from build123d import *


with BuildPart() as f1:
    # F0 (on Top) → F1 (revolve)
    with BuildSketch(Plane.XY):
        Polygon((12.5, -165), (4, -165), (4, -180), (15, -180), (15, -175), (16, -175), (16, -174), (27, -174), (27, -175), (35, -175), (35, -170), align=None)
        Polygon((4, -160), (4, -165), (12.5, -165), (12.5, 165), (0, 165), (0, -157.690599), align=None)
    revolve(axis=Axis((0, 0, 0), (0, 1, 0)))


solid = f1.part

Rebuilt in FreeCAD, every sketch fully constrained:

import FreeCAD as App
import Part
import Sketcher
Q = App.Units.Quantity


def add_polygon(sketch, points):
    """Adds a closed chain of lines whose ends are joined by coincident constraints."""
    first, n = sketch.GeometryCount, len(points)
    for a, b in zip(points, points[1:] + points[:1]):
        sketch.addGeometry(Part.LineSegment(App.Vector(*a, 0), App.Vector(*b, 0)), False)
    for i in range(n):
        sketch.addConstraint(Sketcher.Constraint("Coincident", first + i, 2, first + (i + 1) % n, 1))

doc = App.newDocument("Part")
params = doc.addObject("Spreadsheet::Sheet", "Params")
for row, (alias, value) in enumerate([
    ("sketch1_width", "11 mm"),
    ("sketch1_width2", "1 mm"),
    ("sketch1_width3", "8 mm"),
    ("sketch1_height", "5 mm"),
    ("sketch1_height2", "330 mm"),
    ("revolution_angle", "360 deg"),
], start=1):
    params.set(f"A{row}", alias)
    params.set(f"B{row}", "=" + value)
    params.setAlias(f"B{row}", alias)

body = doc.addObject("PartDesign::Body", "Body")

# Sketch on XY plane
sketch1 = body.newObject("Sketcher::SketchObject", "Sketch")
sketch1.AttachmentSupport = (doc.getObject("XY_Plane"), [""])
sketch1.MapMode = "FlatFace"
add_polygon(sketch1, [(4, -180), (15, -180), (15, -175), (16, -175), (16, -174), (27, -174), (27, -175), (35, -175), (35, -170), (12.5, -165), (12.5, 165), (0, 165), (0, -157.7), (4, -160)])  # lines 0-13
sketch1.addConstraint([
    Sketcher.Constraint("Horizontal", 0),
    Sketcher.Constraint("Vertical", 1),
    Sketcher.Constraint("Horizontal", 2),
    Sketcher.Constraint("Vertical", 3),
    Sketcher.Constraint("Horizontal", 4),
    Sketcher.Constraint("Vertical", 5),
    Sketcher.Constraint("Horizontal", 6),
    Sketcher.Constraint("Vertical", 7),
    Sketcher.Constraint("Vertical", 9),
    Sketcher.Constraint("Horizontal", 10),
    Sketcher.Constraint("Vertical", 11),
    Sketcher.Constraint("Vertical", 13),
    Sketcher.Constraint("PointOnObject", 10, 2, -2),
    Sketcher.Constraint("Horizontal", 2, 2, 5, 2),
    Sketcher.Constraint("Equal", 0, 4),
    Sketcher.Constraint("Equal", 2, 3),
    Sketcher.Constraint("Equal", 1, 7),
    Sketcher.Constraint("DistanceX", 0, 1, 0, 2, Q("11 mm")),
    Sketcher.Constraint("DistanceX", 2, 1, 2, 2, Q("1 mm")),
    Sketcher.Constraint("DistanceX", 6, 1, 6, 2, Q("8 mm")),
    Sketcher.Constraint("DistanceY", 1, 1, 1, 2, Q("5 mm")),
    Sketcher.Constraint("DistanceY", 9, 1, 9, 2, Q("330 mm")),
    Sketcher.Constraint("DistanceY", 13, 2, 13, 1, Q("20 mm")),
    Sketcher.Constraint("Angle", 12, Q("-29.999999 deg")),
    Sketcher.Constraint("DistanceX", 10, 2, 10, 1, Q("12.5 mm")),
    Sketcher.Constraint("DistanceX", -1, 1, 0, 2, Q("15 mm")),
    Sketcher.Constraint("DistanceY", 0, 2, -1, 1, Q("180 mm")),
    Sketcher.Constraint("DistanceY", 8, 2, -1, 1, Q("165 mm")),
])
sketch1.setExpression("Constraints[31]", "Params.sketch1_width")
sketch1.setExpression("Constraints[32]", "Params.sketch1_width2")
sketch1.setExpression("Constraints[33]", "Params.sketch1_width3")
sketch1.setExpression("Constraints[34]", "Params.sketch1_height")
sketch1.setExpression("Constraints[35]", "Params.sketch1_height2")
revolution = body.newObject("PartDesign::Revolution", "Revolution")
revolution.Profile = sketch1
revolution.ReferenceAxis = (sketch1, ["V_Axis"])
revolution.setExpression("Angle", "Params.revolution_angle")

doc.recompute()
